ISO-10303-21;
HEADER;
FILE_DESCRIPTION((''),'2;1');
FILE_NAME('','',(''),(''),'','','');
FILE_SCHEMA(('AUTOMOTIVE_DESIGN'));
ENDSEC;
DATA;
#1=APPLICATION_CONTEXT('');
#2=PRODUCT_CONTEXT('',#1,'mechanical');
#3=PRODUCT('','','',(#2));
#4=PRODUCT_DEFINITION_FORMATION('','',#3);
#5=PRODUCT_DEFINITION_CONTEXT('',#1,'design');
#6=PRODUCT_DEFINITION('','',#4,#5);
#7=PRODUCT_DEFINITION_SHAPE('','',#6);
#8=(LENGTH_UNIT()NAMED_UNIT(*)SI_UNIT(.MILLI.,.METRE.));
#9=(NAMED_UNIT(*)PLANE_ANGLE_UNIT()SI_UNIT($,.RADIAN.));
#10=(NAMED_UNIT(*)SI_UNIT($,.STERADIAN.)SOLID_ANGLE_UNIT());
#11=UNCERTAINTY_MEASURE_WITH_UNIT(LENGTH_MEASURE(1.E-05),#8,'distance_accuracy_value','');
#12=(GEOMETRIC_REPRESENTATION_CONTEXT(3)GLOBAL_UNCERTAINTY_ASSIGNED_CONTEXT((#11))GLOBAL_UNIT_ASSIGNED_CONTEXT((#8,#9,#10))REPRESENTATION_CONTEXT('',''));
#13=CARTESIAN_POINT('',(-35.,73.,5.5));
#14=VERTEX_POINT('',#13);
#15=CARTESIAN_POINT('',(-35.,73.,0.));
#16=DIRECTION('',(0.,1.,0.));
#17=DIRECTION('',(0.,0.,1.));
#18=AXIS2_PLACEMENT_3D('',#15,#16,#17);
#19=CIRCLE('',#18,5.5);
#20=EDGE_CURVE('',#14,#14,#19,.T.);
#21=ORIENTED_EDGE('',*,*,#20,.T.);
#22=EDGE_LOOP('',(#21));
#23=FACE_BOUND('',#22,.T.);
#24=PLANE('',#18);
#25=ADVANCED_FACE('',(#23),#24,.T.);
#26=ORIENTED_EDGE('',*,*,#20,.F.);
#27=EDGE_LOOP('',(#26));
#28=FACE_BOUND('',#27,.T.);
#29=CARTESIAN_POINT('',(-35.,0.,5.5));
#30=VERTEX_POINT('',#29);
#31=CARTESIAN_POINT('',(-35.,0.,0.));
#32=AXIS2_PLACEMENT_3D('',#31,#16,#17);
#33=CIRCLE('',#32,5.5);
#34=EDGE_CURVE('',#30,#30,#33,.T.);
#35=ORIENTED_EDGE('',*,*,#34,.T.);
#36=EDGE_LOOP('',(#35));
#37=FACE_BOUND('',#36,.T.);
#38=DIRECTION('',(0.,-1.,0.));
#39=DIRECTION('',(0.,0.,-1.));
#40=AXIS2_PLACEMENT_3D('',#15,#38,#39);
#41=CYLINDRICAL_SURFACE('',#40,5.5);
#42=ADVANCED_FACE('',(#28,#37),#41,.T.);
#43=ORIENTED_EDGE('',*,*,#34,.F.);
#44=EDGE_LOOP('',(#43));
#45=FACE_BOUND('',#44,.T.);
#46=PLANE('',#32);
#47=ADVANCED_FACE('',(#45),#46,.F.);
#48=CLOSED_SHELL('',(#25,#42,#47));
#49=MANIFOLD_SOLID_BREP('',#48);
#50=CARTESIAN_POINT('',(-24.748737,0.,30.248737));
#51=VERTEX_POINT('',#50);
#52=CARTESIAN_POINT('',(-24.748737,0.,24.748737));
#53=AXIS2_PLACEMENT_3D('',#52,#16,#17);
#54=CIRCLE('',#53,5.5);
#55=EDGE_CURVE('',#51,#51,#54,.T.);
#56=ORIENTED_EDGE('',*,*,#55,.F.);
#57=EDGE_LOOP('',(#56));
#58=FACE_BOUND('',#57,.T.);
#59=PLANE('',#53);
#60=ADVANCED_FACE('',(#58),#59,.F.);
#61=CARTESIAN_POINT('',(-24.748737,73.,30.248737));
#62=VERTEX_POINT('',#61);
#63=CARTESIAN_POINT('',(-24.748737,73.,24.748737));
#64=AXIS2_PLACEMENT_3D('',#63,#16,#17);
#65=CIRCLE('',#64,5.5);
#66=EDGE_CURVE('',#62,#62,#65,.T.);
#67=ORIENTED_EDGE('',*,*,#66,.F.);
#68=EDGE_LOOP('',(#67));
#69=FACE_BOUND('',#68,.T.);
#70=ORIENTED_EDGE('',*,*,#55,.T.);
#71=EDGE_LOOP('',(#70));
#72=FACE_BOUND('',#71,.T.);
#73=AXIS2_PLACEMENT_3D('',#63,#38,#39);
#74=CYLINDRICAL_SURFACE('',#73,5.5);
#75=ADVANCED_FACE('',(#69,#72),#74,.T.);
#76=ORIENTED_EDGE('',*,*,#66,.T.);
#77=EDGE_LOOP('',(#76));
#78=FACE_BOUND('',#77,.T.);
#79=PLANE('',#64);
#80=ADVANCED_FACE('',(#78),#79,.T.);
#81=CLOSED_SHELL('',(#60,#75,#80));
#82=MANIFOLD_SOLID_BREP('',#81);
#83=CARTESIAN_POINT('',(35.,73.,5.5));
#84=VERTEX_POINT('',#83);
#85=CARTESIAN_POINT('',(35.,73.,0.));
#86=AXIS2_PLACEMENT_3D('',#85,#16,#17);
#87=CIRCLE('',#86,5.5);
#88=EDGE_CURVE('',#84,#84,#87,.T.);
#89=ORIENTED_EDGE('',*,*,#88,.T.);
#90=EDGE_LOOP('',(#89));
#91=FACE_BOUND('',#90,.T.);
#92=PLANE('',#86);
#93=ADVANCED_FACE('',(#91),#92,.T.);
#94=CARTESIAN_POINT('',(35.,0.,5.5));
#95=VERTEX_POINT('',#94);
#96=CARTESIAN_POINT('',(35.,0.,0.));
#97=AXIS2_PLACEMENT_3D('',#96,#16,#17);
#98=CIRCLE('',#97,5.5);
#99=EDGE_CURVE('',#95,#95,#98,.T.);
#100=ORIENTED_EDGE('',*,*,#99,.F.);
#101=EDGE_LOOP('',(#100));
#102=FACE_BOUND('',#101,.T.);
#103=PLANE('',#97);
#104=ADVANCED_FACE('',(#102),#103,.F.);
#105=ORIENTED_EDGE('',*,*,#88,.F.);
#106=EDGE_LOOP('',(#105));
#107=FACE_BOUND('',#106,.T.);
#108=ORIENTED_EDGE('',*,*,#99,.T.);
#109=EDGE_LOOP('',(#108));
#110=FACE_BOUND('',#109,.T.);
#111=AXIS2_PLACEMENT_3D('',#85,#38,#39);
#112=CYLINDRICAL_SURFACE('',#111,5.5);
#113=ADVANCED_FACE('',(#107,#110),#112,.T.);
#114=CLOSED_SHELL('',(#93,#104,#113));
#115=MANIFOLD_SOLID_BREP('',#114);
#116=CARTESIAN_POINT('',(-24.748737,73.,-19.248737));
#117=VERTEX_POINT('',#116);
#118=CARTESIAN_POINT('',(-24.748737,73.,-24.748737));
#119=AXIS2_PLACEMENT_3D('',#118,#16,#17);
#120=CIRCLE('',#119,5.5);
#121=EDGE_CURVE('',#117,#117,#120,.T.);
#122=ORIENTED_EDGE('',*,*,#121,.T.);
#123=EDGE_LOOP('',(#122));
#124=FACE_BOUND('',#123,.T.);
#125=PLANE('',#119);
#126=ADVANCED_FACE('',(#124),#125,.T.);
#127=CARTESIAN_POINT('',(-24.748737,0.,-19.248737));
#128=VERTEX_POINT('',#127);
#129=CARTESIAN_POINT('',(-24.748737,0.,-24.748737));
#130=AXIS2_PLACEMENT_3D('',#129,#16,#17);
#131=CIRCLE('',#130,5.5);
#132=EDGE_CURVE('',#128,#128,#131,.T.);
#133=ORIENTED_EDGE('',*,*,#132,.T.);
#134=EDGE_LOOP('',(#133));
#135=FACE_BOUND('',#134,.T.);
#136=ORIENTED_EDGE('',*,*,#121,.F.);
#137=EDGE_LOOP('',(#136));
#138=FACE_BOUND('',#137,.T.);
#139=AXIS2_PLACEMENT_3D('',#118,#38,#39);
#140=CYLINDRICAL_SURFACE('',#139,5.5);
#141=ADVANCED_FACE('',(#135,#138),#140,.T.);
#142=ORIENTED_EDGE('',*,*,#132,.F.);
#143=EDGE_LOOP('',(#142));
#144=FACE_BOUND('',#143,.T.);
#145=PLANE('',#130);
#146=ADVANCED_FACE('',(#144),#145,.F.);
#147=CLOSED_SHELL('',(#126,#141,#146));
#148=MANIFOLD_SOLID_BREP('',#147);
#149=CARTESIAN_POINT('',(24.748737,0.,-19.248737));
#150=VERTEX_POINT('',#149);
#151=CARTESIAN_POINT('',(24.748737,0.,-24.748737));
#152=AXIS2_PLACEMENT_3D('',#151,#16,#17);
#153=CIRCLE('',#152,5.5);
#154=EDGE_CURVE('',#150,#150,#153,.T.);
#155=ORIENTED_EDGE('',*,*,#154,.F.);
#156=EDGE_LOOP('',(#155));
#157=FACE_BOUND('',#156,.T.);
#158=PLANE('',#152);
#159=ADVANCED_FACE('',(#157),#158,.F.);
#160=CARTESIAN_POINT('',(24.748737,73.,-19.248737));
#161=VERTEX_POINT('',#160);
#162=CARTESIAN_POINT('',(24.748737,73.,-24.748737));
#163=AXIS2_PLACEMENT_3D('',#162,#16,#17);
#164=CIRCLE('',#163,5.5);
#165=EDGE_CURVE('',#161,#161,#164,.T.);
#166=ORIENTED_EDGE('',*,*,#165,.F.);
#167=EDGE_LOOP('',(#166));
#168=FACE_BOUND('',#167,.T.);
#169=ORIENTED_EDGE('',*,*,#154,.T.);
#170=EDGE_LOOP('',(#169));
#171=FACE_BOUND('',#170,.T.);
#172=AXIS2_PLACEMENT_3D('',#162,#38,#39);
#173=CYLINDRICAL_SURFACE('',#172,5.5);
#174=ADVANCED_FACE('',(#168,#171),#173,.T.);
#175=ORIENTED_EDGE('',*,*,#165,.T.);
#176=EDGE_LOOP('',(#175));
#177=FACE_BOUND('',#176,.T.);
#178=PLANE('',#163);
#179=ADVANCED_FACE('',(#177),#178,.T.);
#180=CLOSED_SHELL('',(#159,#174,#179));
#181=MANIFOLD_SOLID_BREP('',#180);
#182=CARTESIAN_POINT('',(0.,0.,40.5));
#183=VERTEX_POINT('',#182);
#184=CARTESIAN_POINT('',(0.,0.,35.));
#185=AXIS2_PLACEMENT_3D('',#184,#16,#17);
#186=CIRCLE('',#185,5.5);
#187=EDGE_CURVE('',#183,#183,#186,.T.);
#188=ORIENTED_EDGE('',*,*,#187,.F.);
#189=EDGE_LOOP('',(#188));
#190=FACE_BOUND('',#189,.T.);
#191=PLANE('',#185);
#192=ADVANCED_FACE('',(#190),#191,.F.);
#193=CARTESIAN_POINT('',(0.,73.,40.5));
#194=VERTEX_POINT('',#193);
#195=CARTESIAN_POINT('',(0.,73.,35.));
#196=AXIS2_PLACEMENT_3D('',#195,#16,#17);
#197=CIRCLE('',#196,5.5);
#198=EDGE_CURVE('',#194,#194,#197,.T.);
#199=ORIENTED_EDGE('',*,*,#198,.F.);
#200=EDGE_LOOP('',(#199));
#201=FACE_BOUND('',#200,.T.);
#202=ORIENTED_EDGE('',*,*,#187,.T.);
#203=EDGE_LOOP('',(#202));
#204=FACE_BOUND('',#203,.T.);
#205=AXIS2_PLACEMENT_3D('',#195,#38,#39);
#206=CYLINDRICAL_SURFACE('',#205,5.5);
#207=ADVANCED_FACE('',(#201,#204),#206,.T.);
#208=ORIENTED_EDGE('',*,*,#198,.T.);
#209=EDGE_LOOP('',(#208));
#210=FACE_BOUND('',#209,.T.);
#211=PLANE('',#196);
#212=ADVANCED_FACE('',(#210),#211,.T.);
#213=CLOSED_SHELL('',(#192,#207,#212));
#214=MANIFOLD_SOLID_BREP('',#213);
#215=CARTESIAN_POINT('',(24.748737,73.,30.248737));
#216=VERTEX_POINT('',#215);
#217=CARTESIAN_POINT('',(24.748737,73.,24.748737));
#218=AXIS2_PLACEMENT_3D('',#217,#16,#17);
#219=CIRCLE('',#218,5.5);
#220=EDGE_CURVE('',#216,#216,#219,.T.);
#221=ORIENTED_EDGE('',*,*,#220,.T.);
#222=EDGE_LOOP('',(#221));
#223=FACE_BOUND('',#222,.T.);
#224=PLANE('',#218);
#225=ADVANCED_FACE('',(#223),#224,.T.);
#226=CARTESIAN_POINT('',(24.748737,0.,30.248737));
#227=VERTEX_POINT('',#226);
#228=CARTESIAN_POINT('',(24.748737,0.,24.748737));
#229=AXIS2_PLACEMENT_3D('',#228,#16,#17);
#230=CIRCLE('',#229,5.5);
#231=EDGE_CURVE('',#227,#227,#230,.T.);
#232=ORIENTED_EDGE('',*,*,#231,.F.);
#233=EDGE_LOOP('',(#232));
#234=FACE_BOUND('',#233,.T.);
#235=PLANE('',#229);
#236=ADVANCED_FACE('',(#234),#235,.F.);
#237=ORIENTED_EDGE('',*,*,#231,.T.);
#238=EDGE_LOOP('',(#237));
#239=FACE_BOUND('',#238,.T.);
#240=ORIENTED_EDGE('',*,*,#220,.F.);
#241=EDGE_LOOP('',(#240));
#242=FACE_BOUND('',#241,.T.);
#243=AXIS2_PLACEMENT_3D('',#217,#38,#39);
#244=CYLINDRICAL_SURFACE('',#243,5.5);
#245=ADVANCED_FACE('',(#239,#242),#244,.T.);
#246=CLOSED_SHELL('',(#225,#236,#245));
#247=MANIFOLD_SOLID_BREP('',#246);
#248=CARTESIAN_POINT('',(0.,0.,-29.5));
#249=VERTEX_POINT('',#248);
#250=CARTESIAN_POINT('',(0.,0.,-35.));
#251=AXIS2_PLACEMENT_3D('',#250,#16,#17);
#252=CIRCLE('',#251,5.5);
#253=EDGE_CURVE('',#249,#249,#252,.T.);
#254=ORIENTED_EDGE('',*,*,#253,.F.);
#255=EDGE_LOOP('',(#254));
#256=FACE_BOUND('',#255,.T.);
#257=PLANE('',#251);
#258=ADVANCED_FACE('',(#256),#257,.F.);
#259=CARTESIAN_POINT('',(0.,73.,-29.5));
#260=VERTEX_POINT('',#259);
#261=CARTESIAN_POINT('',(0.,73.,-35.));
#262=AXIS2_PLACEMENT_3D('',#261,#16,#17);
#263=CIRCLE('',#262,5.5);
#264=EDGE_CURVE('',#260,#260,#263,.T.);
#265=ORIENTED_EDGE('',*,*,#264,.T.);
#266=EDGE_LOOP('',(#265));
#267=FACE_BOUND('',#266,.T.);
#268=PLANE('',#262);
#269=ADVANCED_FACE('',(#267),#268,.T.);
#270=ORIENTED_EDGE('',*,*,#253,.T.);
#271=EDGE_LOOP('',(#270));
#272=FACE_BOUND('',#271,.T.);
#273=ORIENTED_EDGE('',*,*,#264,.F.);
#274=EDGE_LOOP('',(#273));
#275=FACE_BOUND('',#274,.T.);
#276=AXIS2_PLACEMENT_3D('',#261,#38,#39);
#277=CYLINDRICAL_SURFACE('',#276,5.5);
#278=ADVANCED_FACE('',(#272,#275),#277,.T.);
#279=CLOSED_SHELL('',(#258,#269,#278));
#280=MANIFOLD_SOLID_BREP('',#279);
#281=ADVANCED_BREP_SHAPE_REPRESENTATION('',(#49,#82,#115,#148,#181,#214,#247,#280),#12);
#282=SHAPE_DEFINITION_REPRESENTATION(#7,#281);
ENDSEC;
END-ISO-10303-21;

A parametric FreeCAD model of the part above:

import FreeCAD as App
import Part
import Sketcher

V = App.Vector
Q = App.Units.Quantity

doc = App.newDocument("Part")
body = doc.addObject("PartDesign::Body", "Body")

sketch1 = body.newObject("Sketcher::SketchObject", "Sketch")
sketch1.AttachmentSupport = (doc.getObject("XZ_Plane"), [""])
sketch1.MapMode = "FlatFace"
sketch1.addGeometry(Part.Circle(V(-35, 0, 0), V(0, 0, 1), 6), False)
sketch1.addConstraint(Sketcher.Constraint("PointOnObject", 0, 3, -1))
sketch1.addConstraint(Sketcher.Constraint("Diameter", 0, Q("11 mm")))
sketch1.addConstraint(Sketcher.Constraint("DistanceX", 0, 3, -1, 1, Q("35 mm")))
pad1 = body.newObject("PartDesign::Pad", "Pad")
pad1.Profile = sketch1
pad1.Length = 73
pad1.Reversed = True
body2 = doc.addObject("PartDesign::Body", "Body001")

sketch2 = body2.newObject("Sketcher::SketchObject", "Sketch001")
sketch2.AttachmentSupport = (doc.getObject("XZ_Plane001"), [""])
sketch2.MapMode = "FlatFace"
sketch2.addGeometry(Part.Circle(V(-25, -25, 0), V(0, 0, 1), 6), False)
sketch2.addConstraint(Sketcher.Constraint("Diameter", 0, Q("11 mm")))
sketch2.addConstraint(Sketcher.Constraint("DistanceX", 0, 3, -1, 1, Q("24.748737 mm")))
sketch2.addConstraint(Sketcher.Constraint("DistanceY", 0, 3, -1, 1, Q("24.748737 mm")))
pad2 = body2.newObject("PartDesign::Pad", "Pad001")
pad2.Profile = sketch2
pad2.Length = 73
pad2.Reversed = True
body3 = doc.addObject("PartDesign::Body", "Body002")

sketch3 = body3.newObject("Sketcher::SketchObject", "Sketch002")
sketch3.AttachmentSupport = (doc.getObject("XZ_Plane002"), [""])
sketch3.MapMode = "FlatFace"
sketch3.addGeometry(Part.Circle(V(0, -35, 0), V(0, 0, 1), 6), False)
sketch3.addConstraint(Sketcher.Constraint("PointOnObject", 0, 3, -2))
sketch3.addConstraint(Sketcher.Constraint("Diameter", 0, Q("11 mm")))
sketch3.addConstraint(Sketcher.Constraint("DistanceY", 0, 3, -1, 1, Q("35 mm")))
pad3 = body3.newObject("PartDesign::Pad", "Pad002")
pad3.Profile = sketch3
pad3.Length = 73
pad3.Reversed = True
body4 = doc.addObject("PartDesign::Body", "Body003")

sketch4 = body4.newObject("Sketcher::SketchObject", "Sketch003")
sketch4.AttachmentSupport = (doc.getObject("XZ_Plane003"), [""])
sketch4.MapMode = "FlatFace"
sketch4.addGeometry(Part.Circle(V(25, -25, 0), V(0, 0, 1), 6), False)
sketch4.addConstraint(Sketcher.Constraint("Diameter", 0, Q("11 mm")))
sketch4.addConstraint(Sketcher.Constraint("DistanceX", -1, 1, 0, 3, Q("24.748737 mm")))
sketch4.addConstraint(Sketcher.Constraint("DistanceY", 0, 3, -1, 1, Q("24.748737 mm")))
pad4 = body4.newObject("PartDesign::Pad", "Pad003")
pad4.Profile = sketch4
pad4.Length = 73
pad4.Reversed = True
body5 = doc.addObject("PartDesign::Body", "Body004")

sketch5 = body5.newObject("Sketcher::SketchObject", "Sketch004")
sketch5.AttachmentSupport = (doc.getObject("XZ_Plane004"), [""])
sketch5.MapMode = "FlatFace"
sketch5.addGeometry(Part.Circle(V(35, 0, 0), V(0, 0, 1), 6), False)
sketch5.addConstraint(Sketcher.Constraint("PointOnObject", 0, 3, -1))
sketch5.addConstraint(Sketcher.Constraint("Diameter", 0, Q("11 mm")))
sketch5.addConstraint(Sketcher.Constraint("DistanceX", -1, 1, 0, 3, Q("35 mm")))
pad5 = body5.newObject("PartDesign::Pad", "Pad004")
pad5.Profile = sketch5
pad5.Length = 73
pad5.Reversed = True
body6 = doc.addObject("PartDesign::Body", "Body005")

sketch6 = body6.newObject("Sketcher::SketchObject", "Sketch005")
sketch6.AttachmentSupport = (doc.getObject("XZ_Plane005"), [""])
sketch6.MapMode = "FlatFace"
sketch6.addGeometry(Part.Circle(V(25, 25, 0), V(0, 0, 1), 6), False)
sketch6.addConstraint(Sketcher.Constraint("Diameter", 0, Q("11 mm")))
sketch6.addConstraint(Sketcher.Constraint("DistanceX", -1, 1, 0, 3, Q("24.748737 mm")))
sketch6.addConstraint(Sketcher.Constraint("DistanceY", -1, 1, 0, 3, Q("24.748737 mm")))
pad6 = body6.newObject("PartDesign::Pad", "Pad005")
pad6.Profile = sketch6
pad6.Length = 73
pad6.Reversed = True
body7 = doc.addObject("PartDesign::Body", "Body006")

sketch7 = body7.newObject("Sketcher::SketchObject", "Sketch006")
sketch7.AttachmentSupport = (doc.getObject("XZ_Plane006"), [""])
sketch7.MapMode = "FlatFace"
sketch7.addGeometry(Part.Circle(V(0, 35, 0), V(0, 0, 1), 6), False)
sketch7.addConstraint(Sketcher.Constraint("PointOnObject", 0, 3, -2))
sketch7.addConstraint(Sketcher.Constraint("Diameter", 0, Q("11 mm")))
sketch7.addConstraint(Sketcher.Constraint("DistanceY", -1, 1, 0, 3, Q("35 mm")))
pad7 = body7.newObject("PartDesign::Pad", "Pad006")
pad7.Profile = sketch7
pad7.Length = 73
pad7.Reversed = True
body8 = doc.addObject("PartDesign::Body", "Body007")

sketch8 = body8.newObject("Sketcher::SketchObject", "Sketch007")
sketch8.AttachmentSupport = (doc.getObject("XZ_Plane007"), [""])
sketch8.MapMode = "FlatFace"
sketch8.addGeometry(Part.Circle(V(-25, 25, 0), V(0, 0, 1), 6), False)
sketch8.addConstraint(Sketcher.Constraint("Diameter", 0, Q("11 mm")))
sketch8.addConstraint(Sketcher.Constraint("DistanceX", 0, 3, -1, 1, Q("24.748737 mm")))
sketch8.addConstraint(Sketcher.Constraint("DistanceY", -1, 1, 0, 3, Q("24.748737 mm")))
pad8 = body8.newObject("PartDesign::Pad", "Pad007")
pad8.Profile = sketch8
pad8.Length = 73
pad8.Reversed = True

doc.recompute()
